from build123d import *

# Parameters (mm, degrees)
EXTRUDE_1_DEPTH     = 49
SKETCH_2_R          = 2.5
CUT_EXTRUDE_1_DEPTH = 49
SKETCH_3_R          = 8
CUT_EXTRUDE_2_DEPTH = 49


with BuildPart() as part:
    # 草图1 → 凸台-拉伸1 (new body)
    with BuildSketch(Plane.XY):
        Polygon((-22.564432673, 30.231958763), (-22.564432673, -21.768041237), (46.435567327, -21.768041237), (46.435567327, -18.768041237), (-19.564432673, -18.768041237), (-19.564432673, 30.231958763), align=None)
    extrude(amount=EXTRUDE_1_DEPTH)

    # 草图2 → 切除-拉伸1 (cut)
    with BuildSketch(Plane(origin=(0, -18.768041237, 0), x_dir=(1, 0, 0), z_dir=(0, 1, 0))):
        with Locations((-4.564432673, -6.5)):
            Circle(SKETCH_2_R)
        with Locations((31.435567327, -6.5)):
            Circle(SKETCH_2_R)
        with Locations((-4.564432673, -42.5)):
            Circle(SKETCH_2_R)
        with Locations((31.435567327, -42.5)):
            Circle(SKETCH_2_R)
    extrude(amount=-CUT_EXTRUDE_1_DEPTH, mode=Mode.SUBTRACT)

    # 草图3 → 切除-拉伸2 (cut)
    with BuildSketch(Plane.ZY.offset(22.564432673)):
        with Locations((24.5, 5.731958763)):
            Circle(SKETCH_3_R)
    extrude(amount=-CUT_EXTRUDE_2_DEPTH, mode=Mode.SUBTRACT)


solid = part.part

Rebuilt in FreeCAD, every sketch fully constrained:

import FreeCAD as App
import Part
import Sketcher

V = App.Vector
Q = App.Units.Quantity


def add_polygon(sketch, points):
    """Adds a closed chain of lines whose ends are joined by coincident constraints."""
    first, n = sketch.GeometryCount, len(points)
    for a, b in zip(points, points[1:] + points[:1]):
        sketch.addGeometry(Part.LineSegment(App.Vector(*a, 0), App.Vector(*b, 0)), False)
    for i in range(n):
        sketch.addConstraint(Sketcher.Constraint("Coincident", first + i, 2, first + (i + 1) % n, 1))

doc = App.newDocument("Part")
body = doc.addObject("PartDesign::Body", "Body")

# Sketch on XY plane
sketch1 = body.newObject("Sketcher::SketchObject", "Sketch")
sketch1.AttachmentSupport = (doc.getObject("XY_Plane"), [""])
sketch1.MapMode = "FlatFace"
add_polygon(sketch1, [(-22.564433, 30.231959), (-22.564433, -21.768041), (46.435567, -21.768041), (46.435567, -18.768041), (-19.564433, -18.768041), (-19.564433, 30.231959)])  # lines 0-5
sketch1.addConstraint([
    Sketcher.Constraint("Vertical", 0),
    Sketcher.Constraint("Horizontal", 1),
    Sketcher.Constraint("Vertical", 2),
    Sketcher.Constraint("Horizontal", 3),
    Sketcher.Constraint("Vertical", 4),
    Sketcher.Constraint("Horizontal", 5),
    Sketcher.Constraint("Equal", 5, 2),
    Sketcher.Constraint("DistanceX", 1, 1, 1, 2, Q("69 mm")),
    Sketcher.Constraint("DistanceX", 3, 2, 3, 1, Q("66 mm")),
    Sketcher.Constraint("DistanceY", 0, 2, 0, 1, Q("52 mm")),
    Sketcher.Constraint("DistanceY", 0, 2, -1, 1, Q("21.768041 mm")),
    Sketcher.Constraint("DistanceX", 0, 2, -1, 1, Q("22.564433 mm")),
])
pad1 = body.newObject("PartDesign::Pad", "Pad")
pad1.Profile = sketch1
pad1.Length = 49

# Sketch on XZ plane
sketch2 = body.newObject("Sketcher::SketchObject", "Sketch001")
sketch2.AttachmentSupport = (doc.getObject("XZ_Plane"), [""])
sketch2.MapMode = "FlatFace"
sketch2.AttachmentOffset = App.Placement(V(0, 0, 18.768041), App.Rotation())
sketch2.addGeometry([
    Part.Circle(V(-4.564433, 6.5, 0), V(0, 0, 1), 2.5),
    Part.Circle(V(31.435567, 6.5, 0), V(0, 0, 1), 2.5),
    Part.Circle(V(-4.564433, 42.5, 0), V(0, 0, 1), 2.5),
    Part.Circle(V(31.435567, 42.5, 0), V(0, 0, 1), 2.5),
], False)
sketch2.addConstraint([
    Sketcher.Constraint("Equal", 0, 1),
    Sketcher.Constraint("Equal", 1, 2),
    Sketcher.Constraint("Equal", 2, 3),
    Sketcher.Constraint("Horizontal", 0, 3, 1, 3),
    Sketcher.Constraint("Horizontal", 2, 3, 3, 3),
    Sketcher.Constraint("Vertical", 0, 3, 2, 3),
    Sketcher.Constraint("Vertical", 1, 3, 3, 3),
    Sketcher.Constraint("Diameter", 0, Q("5 mm")),
    Sketcher.Constraint("DistanceX", 0, 3, 1, 3, Q("36 mm")),
    Sketcher.Constraint("DistanceY", 0, 3, 2, 3, Q("36 mm")),
    Sketcher.Constraint("DistanceY", -1, 1, 0, 3, Q("6.5 mm")),
    Sketcher.Constraint("DistanceX", 0, 3, -1, 1, Q("4.564433 mm")),
])
pocket1 = body.newObject("PartDesign::Pocket", "Pocket")
pocket1.Profile = sketch2
pocket1.Length = 49
pocket1.Reversed = True

# Sketch on YZ plane
sketch3 = body.newObject("Sketcher::SketchObject", "Sketch002")
sketch3.AttachmentSupport = (doc.getObject("YZ_Plane"), [""])
sketch3.MapMode = "FlatFace"
sketch3.AttachmentOffset = App.Placement(V(0, 0, -22.564433), App.Rotation())
sketch3.addGeometry(Part.Circle(V(5.731959, 24.5, 0), V(0, 0, 1), 8), False)
sketch3.addConstraint([
    Sketcher.Constraint("Diameter", 0, Q("16 mm")),
    Sketcher.Constraint("DistanceY", -1, 1, 0, 3, Q("24.5 mm")),
    Sketcher.Constraint("DistanceX", -1, 1, 0, 3, Q("5.731959 mm")),
])
pocket2 = body.newObject("PartDesign::Pocket", "Pocket001")
pocket2.Profile = sketch3
pocket2.Length = 49
pocket2.Reversed = True

doc.recompute()
